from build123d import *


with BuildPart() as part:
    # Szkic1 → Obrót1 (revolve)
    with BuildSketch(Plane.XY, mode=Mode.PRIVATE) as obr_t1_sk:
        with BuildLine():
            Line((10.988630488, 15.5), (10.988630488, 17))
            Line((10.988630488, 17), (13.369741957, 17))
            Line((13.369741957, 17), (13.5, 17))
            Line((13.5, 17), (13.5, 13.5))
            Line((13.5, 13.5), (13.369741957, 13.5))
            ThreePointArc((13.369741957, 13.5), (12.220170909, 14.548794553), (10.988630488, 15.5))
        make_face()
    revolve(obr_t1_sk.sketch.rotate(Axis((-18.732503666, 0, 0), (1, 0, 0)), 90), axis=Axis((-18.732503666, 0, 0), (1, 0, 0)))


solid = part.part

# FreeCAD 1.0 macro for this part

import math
import FreeCAD as App
import Part
import Sketcher

doc = App.newDocument("Part")
body = doc.addObject("PartDesign::Body", "Body")

sketch1 = body.newObject("Sketcher::SketchObject", "Sketch")
sketch1.AttachmentSupport = (doc.getObject("XY_Plane"), [""])
sketch1.MapMode = "FlatFace"
sketch1.addGeometry([
    Part.LineSegment(App.Vector(10.98863, 17, 0), App.Vector(10.98863, 15.5, 0)),
    Part.ArcOfCircle(Part.Circle(App.Vector(0, 0, 0), App.Vector(0, 0, 1), 19), math.radians(45.277754), math.radians(54.665498)),
    Part.LineSegment(App.Vector(13.369742, 13.5, 0), App.Vector(13.5, 13.5, 0)),
    Part.LineSegment(App.Vector(13.5, 13.5, 0), App.Vector(13.5, 17, 0)),
    Part.LineSegment(App.Vector(13.5, 17, 0), App.Vector(10.98863, 17, 0)),
], False)
sketch1.addConstraint([
    Sketcher.Constraint("Coincident", 0, 2, 1, 2),
    Sketcher.Constraint("Coincident", 1, 1, 2, 1),
    Sketcher.Constraint("Coincident", 2, 2, 3, 1),
    Sketcher.Constraint("Coincident", 3, 2, 4, 1),
    Sketcher.Constraint("Coincident", 4, 2, 0, 1),
    Sketcher.Constraint("Vertical", 0),
    Sketcher.Constraint("Horizontal", 2),
    Sketcher.Constraint("Vertical", 3),
    Sketcher.Constraint("Horizontal", 4),
    Sketcher.Constraint("Coincident", 1, 3, -1, 1),
    Sketcher.Constraint("Radius", 1, 19.0),
    Sketcher.Constraint("DistanceY", 0, 2, 0, 1, 1.5),
    Sketcher.Constraint("DistanceY", 3, 1, 3, 2, 3.5),
    Sketcher.Constraint("DistanceY", -1, 1, 3, 2, 17.0),
    Sketcher.Constraint("DistanceX", -1, 1, 2, 2, 13.5),
])
revolution = body.newObject("PartDesign::Revolution", "Revolution")
revolution.Profile = sketch1
revolution.ReferenceAxis = (sketch1, ["H_Axis"])
revolution.Angle = 360

doc.recompute()
